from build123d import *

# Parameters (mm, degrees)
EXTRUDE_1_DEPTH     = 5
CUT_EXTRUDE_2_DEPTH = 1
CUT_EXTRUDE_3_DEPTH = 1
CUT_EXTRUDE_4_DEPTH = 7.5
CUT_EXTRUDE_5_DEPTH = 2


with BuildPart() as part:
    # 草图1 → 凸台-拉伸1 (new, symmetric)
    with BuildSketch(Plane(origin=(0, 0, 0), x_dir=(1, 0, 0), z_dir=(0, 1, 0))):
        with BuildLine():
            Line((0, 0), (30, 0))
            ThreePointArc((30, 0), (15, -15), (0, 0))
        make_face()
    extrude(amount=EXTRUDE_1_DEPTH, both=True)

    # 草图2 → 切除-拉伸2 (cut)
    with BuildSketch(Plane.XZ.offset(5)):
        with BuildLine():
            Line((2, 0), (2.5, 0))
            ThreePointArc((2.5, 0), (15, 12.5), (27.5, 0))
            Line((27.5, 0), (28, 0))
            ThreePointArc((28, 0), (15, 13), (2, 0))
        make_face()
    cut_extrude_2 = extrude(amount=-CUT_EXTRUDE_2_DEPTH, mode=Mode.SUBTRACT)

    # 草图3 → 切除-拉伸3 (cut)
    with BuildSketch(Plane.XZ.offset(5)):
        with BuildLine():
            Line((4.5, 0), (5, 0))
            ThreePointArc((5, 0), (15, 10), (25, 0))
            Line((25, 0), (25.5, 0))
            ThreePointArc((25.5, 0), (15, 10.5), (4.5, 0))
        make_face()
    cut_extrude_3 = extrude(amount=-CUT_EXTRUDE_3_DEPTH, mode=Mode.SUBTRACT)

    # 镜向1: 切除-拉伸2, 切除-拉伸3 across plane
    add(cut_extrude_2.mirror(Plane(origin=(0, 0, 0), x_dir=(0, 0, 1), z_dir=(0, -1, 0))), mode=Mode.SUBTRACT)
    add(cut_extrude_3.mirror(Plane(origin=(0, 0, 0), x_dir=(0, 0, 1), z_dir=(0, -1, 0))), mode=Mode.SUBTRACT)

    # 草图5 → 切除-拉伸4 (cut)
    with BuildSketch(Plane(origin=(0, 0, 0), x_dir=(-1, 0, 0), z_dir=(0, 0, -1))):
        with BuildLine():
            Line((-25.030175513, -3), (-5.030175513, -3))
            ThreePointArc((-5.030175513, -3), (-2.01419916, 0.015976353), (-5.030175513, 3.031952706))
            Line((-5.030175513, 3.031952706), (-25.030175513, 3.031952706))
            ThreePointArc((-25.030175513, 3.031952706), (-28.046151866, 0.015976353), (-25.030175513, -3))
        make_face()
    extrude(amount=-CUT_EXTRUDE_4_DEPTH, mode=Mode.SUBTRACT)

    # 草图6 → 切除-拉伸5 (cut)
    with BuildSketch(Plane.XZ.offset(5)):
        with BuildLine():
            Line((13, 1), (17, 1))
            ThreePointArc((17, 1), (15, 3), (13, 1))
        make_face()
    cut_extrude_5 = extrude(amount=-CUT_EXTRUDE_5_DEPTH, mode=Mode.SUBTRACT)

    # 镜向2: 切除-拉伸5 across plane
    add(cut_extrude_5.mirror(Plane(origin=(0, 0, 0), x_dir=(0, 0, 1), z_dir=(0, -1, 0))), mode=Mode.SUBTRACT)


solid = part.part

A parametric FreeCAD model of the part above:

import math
import FreeCAD as App
import Part
import Sketcher

doc = App.newDocument("Part")
body = doc.addObject("PartDesign::Body", "Body")

sketch1 = doc.addObject("Sketcher::SketchObject", "Sketch")
body.addObject(sketch1)
sketch1.AttachmentSupport = (doc.XZ_Plane, [""])
sketch1.MapMode = "FlatFace"
sketch1.addGeometry([
    Part.LineSegment(App.Vector(30, 0, 0), App.Vector(0, 0, 0)),
    Part.ArcOfCircle(Part.Circle(App.Vector(15, 0, 0), App.Vector(0, 0, 1), 15), math.radians(0), math.radians(180)),
], False)
sketch1.addConstraint([
    Sketcher.Constraint("Coincident", 0, 1, 1, 1),
    Sketcher.Constraint("Coincident", 1, 2, 0, 2),
    Sketcher.Constraint("Horizontal", 0),
    Sketcher.Constraint("Coincident", 1, 2, -1, 1),
    Sketcher.Constraint("PointOnObject", 1, 3, -1),
    Sketcher.Constraint("Radius", 1, 15.0),
])
pad1 = doc.addObject("PartDesign::Pad", "Pad")
body.addObject(pad1)
pad1.Profile = sketch1
pad1.Length = 10
pad1.Midplane = True

sketch2 = doc.addObject("Sketcher::SketchObject", "Sketch001")
body.addObject(sketch2)
sketch2.AttachmentSupport = (doc.XZ_Plane, [""])
sketch2.MapMode = "FlatFace"
sketch2.AttachmentOffset = App.Placement(App.Vector(0, 0, 5), App.Rotation())
sketch2.addGeometry([
    Part.LineSegment(App.Vector(2, 0, 0), App.Vector(2.5, 0, 0)),
    Part.ArcOfCircle(Part.Circle(App.Vector(15, 0, 0), App.Vector(0, 0, 1), 12.5), math.radians(0), math.radians(180)),
    Part.LineSegment(App.Vector(27.5, 0, 0), App.Vector(28, 0, 0)),
    Part.ArcOfCircle(Part.Circle(App.Vector(15, 0, 0), App.Vector(0, 0, 1), 13), math.radians(0), math.radians(180)),
], False)
sketch2.addConstraint([
    Sketcher.Constraint("Coincident", 0, 2, 1, 2),
    Sketcher.Constraint("Coincident", 1, 1, 2, 1),
    Sketcher.Constraint("Coincident", 2, 2, 3, 1),
    Sketcher.Constraint("Coincident", 3, 2, 0, 1),
    Sketcher.Constraint("Horizontal", 0),
    Sketcher.Constraint("Horizontal", 2),
    Sketcher.Constraint("Coincident", 3, 3, 1, 3),
    Sketcher.Constraint("PointOnObject", 1, 3, -1),
    Sketcher.Constraint("PointOnObject", 0, 2, -1),
    Sketcher.Constraint("PointOnObject", 1, 1, -1),
    Sketcher.Constraint("Radius", 3, 13.0),
    Sketcher.Constraint("Radius", 1, 12.5),
    Sketcher.Constraint("DistanceX", -1, 1, 1, 3, 15.0),
])
pocket1 = doc.addObject("PartDesign::Pocket", "Pocket")
body.addObject(pocket1)
pocket1.Profile = sketch2
pocket1.Length = 1

sketch3 = doc.addObject("Sketcher::SketchObject", "Sketch002")
body.addObject(sketch3)
sketch3.AttachmentSupport = (doc.XZ_Plane, [""])
sketch3.MapMode = "FlatFace"
sketch3.AttachmentOffset = App.Placement(App.Vector(0, 0, 5), App.Rotation())
sketch3.addGeometry([
    Part.LineSegment(App.Vector(4.5, 0, 0), App.Vector(5, 0, 0)),
    Part.ArcOfCircle(Part.Circle(App.Vector(15, 0, 0), App.Vector(0, 0, 1), 10), math.radians(0), math.radians(180)),
    Part.LineSegment(App.Vector(25, 0, 0), App.Vector(25.5, 0, 0)),
    Part.ArcOfCircle(Part.Circle(App.Vector(15, 0, 0), App.Vector(0, 0, 1), 10.5), math.radians(0), math.radians(180)),
], False)
sketch3.addConstraint([
    Sketcher.Constraint("Coincident", 0, 2, 1, 2),
    Sketcher.Constraint("Coincident", 1, 1, 2, 1),
    Sketcher.Constraint("Coincident", 2, 2, 3, 1),
    Sketcher.Constraint("Coincident", 3, 2, 0, 1),
    Sketcher.Constraint("Horizontal", 0),
    Sketcher.Constraint("Horizontal", 2),
    Sketcher.Constraint("Coincident", 3, 3, 1, 3),
    Sketcher.Constraint("PointOnObject", 1, 3, -1),
    Sketcher.Constraint("PointOnObject", 0, 2, -1),
    Sketcher.Constraint("PointOnObject", 1, 1, -1),
    Sketcher.Constraint("Radius", 1, 10.0),
    Sketcher.Constraint("Radius", 3, 10.5),
    Sketcher.Constraint("DistanceX", -1, 1, 1, 3, 15.0),
])
pocket2 = doc.addObject("PartDesign::Pocket", "Pocket001")
body.addObject(pocket2)
pocket2.Profile = sketch3
pocket2.Length = 1
doc.recompute()

mirrored = doc.addObject("PartDesign::Mirrored", "Mirrored")
body.addObject(mirrored)
mirrored.Originals = [pocket1, pocket2]
mirrored.MirrorPlane = (doc.XZ_Plane, [""])
body.Tip = mirrored

sketch4 = doc.addObject("Sketcher::SketchObject", "Sketch003")
body.addObject(sketch4)
sketch4.AttachmentSupport = (doc.XY_Plane, [""])
sketch4.MapMode = "FlatFace"
sketch4.addGeometry([
    Part.LineSegment(App.Vector(25.030176, -3, 0), App.Vector(5.030176, -3, 0)),
    Part.ArcOfCircle(Part.Circle(App.Vector(5.030176, 0.015976, 0), App.Vector(0, 0, 1), 3.015976), math.radians(90), math.radians(270)),
    Part.LineSegment(App.Vector(5.030176, 3.031953, 0), App.Vector(25.030176, 3.031953, 0)),
    Part.ArcOfCircle(Part.Circle(App.Vector(25.030176, 0.015976, 0), App.Vector(0, 0, 1), 3.015976), math.radians(-90), math.radians(90)),
], False)
sketch4.addConstraint([
    Sketcher.Constraint("Tangent", 0, 2, 1, 2),
    Sketcher.Constraint("Tangent", 1, 1, 2, 1),
    Sketcher.Constraint("Tangent", 2, 2, 3, 2),
    Sketcher.Constraint("Tangent", 3, 1, 0, 1),
    Sketcher.Constraint("Horizontal", 0),
    Sketcher.Constraint("Horizontal", 2),
    Sketcher.Constraint("DistanceX", 0, 2, 0, 1, 20.0),
    Sketcher.Constraint("DistanceY", 0, 2, -1, 1, 3.0),
    Sketcher.Constraint("Radius", 1, 3.015976),
    Sketcher.Constraint("DistanceX", -1, 1, 1, 3, 5.030176),
])
pocket3 = doc.addObject("PartDesign::Pocket", "Pocket002")
body.addObject(pocket3)
pocket3.Profile = sketch4
pocket3.Length = 7.5
pocket3.Reversed = True

sketch5 = doc.addObject("Sketcher::SketchObject", "Sketch004")
body.addObject(sketch5)
sketch5.AttachmentSupport = (doc.XZ_Plane, [""])
sketch5.MapMode = "FlatFace"
sketch5.AttachmentOffset = App.Placement(App.Vector(0, 0, 5), App.Rotation())
sketch5.addGeometry([
    Part.LineSegment(App.Vector(13, 1, 0), App.Vector(17, 1, 0)),
    Part.ArcOfCircle(Part.Circle(App.Vector(15, 1, 0), App.Vector(0, 0, 1), 2), math.radians(0), math.radians(180)),
], False)
sketch5.addConstraint([
    Sketcher.Constraint("Coincident", 0, 1, 1, 2),
    Sketcher.Constraint("Coincident", 1, 1, 0, 2),
    Sketcher.Constraint("Horizontal", 0),
    Sketcher.Constraint("Horizontal", 1, 3, 0, 1),
    Sketcher.Constraint("Radius", 1, 2.0),
    Sketcher.Constraint("DistanceX", -1, 1, 1, 3, 15.0),
    Sketcher.Constraint("DistanceY", -1, 1, 1, 3, 1.0),
])
pocket4 = doc.addObject("PartDesign::Pocket", "Pocket003")
body.addObject(pocket4)
pocket4.Profile = sketch5
pocket4.Length = 2
doc.recompute()

mirrored2 = doc.addObject("PartDesign::Mirrored", "Mirrored001")
body.addObject(mirrored2)
mirrored2.Originals = [pocket4]
mirrored2.MirrorPlane = (doc.XZ_Plane, [""])
body.Tip = mirrored2

doc.recompute()
